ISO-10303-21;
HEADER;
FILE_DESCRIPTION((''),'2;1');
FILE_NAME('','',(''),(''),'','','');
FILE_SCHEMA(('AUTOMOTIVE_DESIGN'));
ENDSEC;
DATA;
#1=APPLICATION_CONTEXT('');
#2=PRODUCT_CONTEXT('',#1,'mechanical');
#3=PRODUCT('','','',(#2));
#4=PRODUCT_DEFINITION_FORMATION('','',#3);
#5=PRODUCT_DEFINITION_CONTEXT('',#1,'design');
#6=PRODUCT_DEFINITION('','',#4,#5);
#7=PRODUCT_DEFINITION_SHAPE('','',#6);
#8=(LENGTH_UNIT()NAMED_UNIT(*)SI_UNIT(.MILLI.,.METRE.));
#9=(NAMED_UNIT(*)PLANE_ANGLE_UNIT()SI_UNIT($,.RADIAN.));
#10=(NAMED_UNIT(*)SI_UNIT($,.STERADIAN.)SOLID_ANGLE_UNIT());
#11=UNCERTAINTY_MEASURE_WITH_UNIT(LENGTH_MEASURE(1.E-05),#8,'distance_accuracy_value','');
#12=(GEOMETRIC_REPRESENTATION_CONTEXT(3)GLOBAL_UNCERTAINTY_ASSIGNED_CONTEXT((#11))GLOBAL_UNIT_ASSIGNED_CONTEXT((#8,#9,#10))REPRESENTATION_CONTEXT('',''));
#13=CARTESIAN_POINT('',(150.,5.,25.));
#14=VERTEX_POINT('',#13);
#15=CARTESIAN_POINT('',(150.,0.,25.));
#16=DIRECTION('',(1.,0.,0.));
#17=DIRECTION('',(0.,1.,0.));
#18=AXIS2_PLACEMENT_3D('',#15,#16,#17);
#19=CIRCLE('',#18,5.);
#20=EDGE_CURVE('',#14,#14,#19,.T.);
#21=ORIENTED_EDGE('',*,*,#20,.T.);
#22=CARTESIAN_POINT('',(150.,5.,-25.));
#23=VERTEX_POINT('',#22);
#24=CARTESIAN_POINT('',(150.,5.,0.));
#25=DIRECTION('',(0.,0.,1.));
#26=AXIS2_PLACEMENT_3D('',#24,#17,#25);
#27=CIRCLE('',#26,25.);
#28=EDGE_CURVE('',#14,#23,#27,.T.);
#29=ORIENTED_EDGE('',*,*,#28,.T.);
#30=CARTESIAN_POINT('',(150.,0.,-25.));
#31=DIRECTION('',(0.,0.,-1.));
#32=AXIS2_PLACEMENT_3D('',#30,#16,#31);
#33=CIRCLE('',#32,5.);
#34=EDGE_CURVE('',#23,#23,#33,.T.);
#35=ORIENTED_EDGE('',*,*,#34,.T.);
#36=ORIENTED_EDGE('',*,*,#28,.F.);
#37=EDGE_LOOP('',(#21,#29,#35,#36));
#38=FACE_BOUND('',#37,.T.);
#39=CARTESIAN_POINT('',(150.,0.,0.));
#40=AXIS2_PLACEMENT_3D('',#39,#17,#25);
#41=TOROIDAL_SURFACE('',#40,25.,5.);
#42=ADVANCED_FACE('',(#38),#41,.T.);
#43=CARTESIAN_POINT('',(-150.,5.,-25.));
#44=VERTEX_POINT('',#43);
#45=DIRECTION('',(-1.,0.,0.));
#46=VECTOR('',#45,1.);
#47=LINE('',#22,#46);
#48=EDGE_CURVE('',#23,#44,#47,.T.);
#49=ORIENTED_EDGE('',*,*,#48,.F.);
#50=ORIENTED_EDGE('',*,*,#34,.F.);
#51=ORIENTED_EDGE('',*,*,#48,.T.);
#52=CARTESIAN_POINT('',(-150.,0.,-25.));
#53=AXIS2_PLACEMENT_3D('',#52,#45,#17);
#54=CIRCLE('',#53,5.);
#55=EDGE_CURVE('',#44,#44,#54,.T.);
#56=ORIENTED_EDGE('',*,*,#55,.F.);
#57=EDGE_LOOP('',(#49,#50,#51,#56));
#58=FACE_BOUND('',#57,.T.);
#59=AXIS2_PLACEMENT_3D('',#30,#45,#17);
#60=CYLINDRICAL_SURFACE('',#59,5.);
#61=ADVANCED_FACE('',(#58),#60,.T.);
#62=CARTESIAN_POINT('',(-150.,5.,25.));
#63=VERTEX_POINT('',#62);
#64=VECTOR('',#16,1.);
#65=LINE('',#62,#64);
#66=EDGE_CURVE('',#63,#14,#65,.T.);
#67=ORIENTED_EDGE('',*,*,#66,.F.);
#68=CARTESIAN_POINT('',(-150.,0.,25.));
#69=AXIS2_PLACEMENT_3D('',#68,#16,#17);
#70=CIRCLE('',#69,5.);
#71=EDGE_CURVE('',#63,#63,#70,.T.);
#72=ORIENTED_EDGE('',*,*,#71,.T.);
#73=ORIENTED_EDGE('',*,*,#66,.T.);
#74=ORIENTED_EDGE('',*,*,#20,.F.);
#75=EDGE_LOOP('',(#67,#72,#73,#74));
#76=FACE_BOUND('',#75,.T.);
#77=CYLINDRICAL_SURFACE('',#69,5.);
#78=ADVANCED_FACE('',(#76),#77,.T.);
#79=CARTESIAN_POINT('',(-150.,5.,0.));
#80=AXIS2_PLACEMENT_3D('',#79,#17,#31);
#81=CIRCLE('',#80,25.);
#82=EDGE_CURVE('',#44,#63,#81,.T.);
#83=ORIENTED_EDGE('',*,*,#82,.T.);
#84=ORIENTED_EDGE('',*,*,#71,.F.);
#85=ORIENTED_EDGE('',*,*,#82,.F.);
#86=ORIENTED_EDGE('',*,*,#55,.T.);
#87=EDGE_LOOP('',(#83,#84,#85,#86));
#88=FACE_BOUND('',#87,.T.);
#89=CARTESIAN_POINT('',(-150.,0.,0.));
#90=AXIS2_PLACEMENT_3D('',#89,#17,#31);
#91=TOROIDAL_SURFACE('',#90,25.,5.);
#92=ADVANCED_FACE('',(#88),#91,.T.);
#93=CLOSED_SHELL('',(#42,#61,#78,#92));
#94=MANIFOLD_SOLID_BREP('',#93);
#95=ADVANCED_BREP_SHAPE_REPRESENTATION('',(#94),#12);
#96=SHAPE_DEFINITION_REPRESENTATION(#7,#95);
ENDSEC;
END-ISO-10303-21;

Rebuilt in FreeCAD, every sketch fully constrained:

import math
import FreeCAD as App
import Part
import Sketcher

V = App.Vector

doc = App.newDocument("Part")
params = doc.addObject("Spreadsheet::Sheet", "Params")
for row, (alias, value) in enumerate([
    ("sketch1_diameter", "10 mm"),
    ("sketch2_radius", "25 mm"),
    ("sketch2_width", "300 mm"),
], start=1):
    params.set(f"A{row}", alias)
    params.set(f"B{row}", "=" + value)
    params.setAlias(f"B{row}", alias)

body = doc.addObject("PartDesign::Body", "Body")

# Sketch on YZ plane
sketch1 = body.newObject("Sketcher::SketchObject", "Sketch")
sketch1.AttachmentSupport = (doc.getObject("YZ_Plane"), [""])
sketch1.MapMode = "FlatFace"
sketch1.addGeometry(Part.Circle(V(0, 25, 0), V(0, 0, 1), 5), False)
sketch1.addConstraint([
    Sketcher.Constraint("PointOnObject", 0, 3, -2),
    Sketcher.Constraint("Diameter", 0, 10.0),
    Sketcher.Constraint("DistanceY", -1, 1, 0, 3, 25.0),
])
sketch1.setExpression("Constraints[1]", "Params.sketch1_diameter")

# Sketch on XZ plane
sketch2 = body.newObject("Sketcher::SketchObject", "Sketch001")
sketch2.AttachmentSupport = (doc.getObject("XZ_Plane"), [""])
sketch2.MapMode = "FlatFace"
sketch2.addGeometry([
    Part.LineSegment(V(-150, 25, 0), V(150, 25, 0)),
    Part.ArcOfCircle(Part.Circle(V(150, 0, 0), V(0, 0, 1), 25), math.radians(-90), math.radians(90)),
    Part.LineSegment(V(150, -25, 0), V(-150, -25, 0)),
    Part.ArcOfCircle(Part.Circle(V(-150, 0, 0), V(0, 0, 1), 25), math.radians(90), math.radians(270)),
], False)
sketch2.addConstraint([
    Sketcher.Constraint("Tangent", 0, 2, 1, 2),
    Sketcher.Constraint("Tangent", 1, 1, 2, 1),
    Sketcher.Constraint("Tangent", 2, 2, 3, 2),
    Sketcher.Constraint("Tangent", 3, 1, 0, 1),
    Sketcher.Constraint("Horizontal", 0),
    Sketcher.Constraint("Horizontal", 2),
    Sketcher.Constraint("Symmetric", 1, 3, 3, 3, -1, 1),
    Sketcher.Constraint("Radius", 1, 25.0),
    Sketcher.Constraint("DistanceX", 0, 1, 0, 2, 300.0),
])
sketch2.setExpression("Constraints[7]", "Params.sketch2_radius")
sketch2.setExpression("Constraints[8]", "Params.sketch2_width")
doc.recompute()

additivepipe = body.newObject("PartDesign::AdditivePipe", "AdditivePipe")
additivepipe.Profile = sketch1
additivepipe.Spine = (sketch2, ["Edge1", "Edge2", "Edge3", "Edge4"])

doc.recompute()
